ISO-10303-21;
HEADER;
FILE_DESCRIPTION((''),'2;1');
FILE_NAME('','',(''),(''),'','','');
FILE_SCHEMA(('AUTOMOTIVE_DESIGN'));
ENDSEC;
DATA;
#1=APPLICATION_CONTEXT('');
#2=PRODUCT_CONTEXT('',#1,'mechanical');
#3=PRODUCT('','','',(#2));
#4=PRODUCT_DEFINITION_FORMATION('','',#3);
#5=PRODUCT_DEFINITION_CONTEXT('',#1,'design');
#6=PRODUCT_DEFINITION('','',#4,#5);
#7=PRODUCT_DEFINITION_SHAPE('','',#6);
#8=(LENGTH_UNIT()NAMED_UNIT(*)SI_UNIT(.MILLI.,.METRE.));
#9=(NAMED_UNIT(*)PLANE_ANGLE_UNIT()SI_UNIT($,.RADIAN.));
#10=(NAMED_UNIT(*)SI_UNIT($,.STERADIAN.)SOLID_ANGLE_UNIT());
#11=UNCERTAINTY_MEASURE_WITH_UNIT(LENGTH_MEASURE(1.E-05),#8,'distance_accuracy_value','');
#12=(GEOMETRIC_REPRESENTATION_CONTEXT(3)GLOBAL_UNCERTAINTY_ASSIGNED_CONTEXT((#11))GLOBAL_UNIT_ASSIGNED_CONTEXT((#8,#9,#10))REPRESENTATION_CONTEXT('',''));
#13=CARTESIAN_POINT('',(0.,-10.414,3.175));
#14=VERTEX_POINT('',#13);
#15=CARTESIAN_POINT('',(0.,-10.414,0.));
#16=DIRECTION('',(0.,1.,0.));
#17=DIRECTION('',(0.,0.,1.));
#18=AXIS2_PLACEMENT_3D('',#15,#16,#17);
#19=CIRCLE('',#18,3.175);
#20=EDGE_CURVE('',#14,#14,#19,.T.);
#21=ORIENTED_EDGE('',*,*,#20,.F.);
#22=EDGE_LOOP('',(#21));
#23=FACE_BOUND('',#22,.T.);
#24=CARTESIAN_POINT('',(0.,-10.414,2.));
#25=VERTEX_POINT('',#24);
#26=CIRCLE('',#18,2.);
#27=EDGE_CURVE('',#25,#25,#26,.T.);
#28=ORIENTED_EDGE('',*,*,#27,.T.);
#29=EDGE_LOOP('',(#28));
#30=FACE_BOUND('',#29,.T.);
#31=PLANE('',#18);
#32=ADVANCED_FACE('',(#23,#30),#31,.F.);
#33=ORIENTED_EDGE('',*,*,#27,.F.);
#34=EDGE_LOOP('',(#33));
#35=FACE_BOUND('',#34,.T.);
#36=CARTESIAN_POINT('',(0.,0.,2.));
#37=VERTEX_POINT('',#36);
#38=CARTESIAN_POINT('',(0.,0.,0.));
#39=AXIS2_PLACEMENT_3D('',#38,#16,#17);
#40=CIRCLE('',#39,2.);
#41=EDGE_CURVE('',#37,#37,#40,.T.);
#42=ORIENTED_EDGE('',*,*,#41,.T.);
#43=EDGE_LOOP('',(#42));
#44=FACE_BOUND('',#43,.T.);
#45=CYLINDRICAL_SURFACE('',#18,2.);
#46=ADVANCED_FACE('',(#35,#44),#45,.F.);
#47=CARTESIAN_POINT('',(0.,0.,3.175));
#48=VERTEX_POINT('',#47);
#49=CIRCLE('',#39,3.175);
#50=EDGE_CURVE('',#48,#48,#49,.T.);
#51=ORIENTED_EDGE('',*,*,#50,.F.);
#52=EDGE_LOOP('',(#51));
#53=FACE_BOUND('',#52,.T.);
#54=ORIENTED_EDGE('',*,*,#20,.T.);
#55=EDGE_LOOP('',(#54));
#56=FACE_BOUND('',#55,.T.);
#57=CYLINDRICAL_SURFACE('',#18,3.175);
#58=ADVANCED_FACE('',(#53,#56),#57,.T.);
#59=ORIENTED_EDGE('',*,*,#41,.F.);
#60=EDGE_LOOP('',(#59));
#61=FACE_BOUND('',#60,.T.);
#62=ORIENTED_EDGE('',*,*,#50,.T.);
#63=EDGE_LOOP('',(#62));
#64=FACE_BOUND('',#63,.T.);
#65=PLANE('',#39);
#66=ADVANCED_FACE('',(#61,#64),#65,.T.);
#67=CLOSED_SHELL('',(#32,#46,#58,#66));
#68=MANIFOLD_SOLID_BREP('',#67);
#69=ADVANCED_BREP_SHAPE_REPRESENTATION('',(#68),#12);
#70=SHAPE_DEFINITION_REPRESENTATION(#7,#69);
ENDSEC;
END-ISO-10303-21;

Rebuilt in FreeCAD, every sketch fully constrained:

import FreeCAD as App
import Part
import Sketcher

V = App.Vector
Q = App.Units.Quantity

doc = App.newDocument("Part")
body = doc.addObject("PartDesign::Body", "Body")

# Sketch on XZ plane
sketch1 = body.newObject("Sketcher::SketchObject", "Sketch")
sketch1.AttachmentSupport = (doc.getObject("XZ_Plane"), [""])
sketch1.MapMode = "FlatFace"
sketch1.addGeometry([
    Part.Circle(V(0, 0, 0), V(0, 0, 1), 3.2),
    Part.Circle(V(0, 0, 0), V(0, 0, 1), 2),
], False)
sketch1.addConstraint([
    Sketcher.Constraint("Coincident", 0, 3, -1, 1),
    Sketcher.Constraint("Coincident", 1, 3, -1, 1),
    Sketcher.Constraint("Diameter", 0, Q("0.25 in")),
    Sketcher.Constraint("Diameter", 1, 4.0),
])
pad1 = body.newObject("PartDesign::Pad", "Pad")
pad1.Profile = sketch1
pad1.Length = Q("0.41 in")

doc.recompute()
